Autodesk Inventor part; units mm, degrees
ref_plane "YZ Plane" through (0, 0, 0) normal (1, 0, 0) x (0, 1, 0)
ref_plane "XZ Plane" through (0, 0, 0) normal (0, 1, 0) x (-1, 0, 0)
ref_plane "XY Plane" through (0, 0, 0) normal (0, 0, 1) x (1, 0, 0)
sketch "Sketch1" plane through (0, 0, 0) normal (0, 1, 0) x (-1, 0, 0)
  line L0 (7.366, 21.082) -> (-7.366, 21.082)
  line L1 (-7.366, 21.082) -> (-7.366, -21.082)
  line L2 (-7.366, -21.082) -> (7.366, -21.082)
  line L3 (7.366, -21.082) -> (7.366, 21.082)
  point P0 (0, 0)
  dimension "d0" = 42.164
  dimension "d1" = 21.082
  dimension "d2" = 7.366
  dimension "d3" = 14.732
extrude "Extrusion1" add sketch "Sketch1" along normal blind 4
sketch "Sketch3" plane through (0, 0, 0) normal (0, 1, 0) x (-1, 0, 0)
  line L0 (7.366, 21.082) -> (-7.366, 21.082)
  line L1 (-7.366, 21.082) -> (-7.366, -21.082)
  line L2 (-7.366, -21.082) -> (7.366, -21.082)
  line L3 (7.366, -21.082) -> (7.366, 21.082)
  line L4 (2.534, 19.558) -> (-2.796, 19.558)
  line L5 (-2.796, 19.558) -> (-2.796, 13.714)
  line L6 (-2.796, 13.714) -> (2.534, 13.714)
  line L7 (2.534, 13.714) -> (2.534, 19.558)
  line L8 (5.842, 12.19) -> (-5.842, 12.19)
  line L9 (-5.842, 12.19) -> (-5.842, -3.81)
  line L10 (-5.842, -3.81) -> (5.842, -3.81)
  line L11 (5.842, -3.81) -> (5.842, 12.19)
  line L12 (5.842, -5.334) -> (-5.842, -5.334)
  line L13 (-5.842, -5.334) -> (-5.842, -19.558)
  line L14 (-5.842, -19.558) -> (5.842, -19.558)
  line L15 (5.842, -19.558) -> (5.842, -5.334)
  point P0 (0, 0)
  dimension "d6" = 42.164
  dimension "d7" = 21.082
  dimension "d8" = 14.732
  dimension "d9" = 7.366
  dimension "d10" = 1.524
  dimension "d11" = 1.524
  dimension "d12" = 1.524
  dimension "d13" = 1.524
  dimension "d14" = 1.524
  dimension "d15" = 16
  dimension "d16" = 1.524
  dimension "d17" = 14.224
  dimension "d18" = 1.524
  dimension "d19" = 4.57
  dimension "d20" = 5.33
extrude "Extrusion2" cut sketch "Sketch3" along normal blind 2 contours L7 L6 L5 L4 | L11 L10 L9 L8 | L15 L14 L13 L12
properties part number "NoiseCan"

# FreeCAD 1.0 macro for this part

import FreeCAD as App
import Part
import Sketcher

V = App.Vector
Q = App.Units.Quantity

doc = App.newDocument("Part")
body = doc.addObject("PartDesign::Body", "Body")

# Sketch on XZ plane
sketch1 = doc.addObject("Sketcher::SketchObject", "Sketch")
body.addObject(sketch1)
sketch1.AttachmentSupport = (doc.XZ_Plane, [""])
sketch1.MapMode = "FlatFace"
sketch1.addGeometry([
    Part.LineSegment(V(-7, -21, 0), V(-7, 21, 0)),
    Part.LineSegment(V(-7, 21, 0), V(7, 21, 0)),
    Part.LineSegment(V(7, 21, 0), V(7, -21, 0)),
    Part.LineSegment(V(7, -21, 0), V(-7, -21, 0)),
], False)
sketch1.addConstraint([
    Sketcher.Constraint("Coincident", 0, 2, 1, 1),
    Sketcher.Constraint("Coincident", 1, 2, 2, 1),
    Sketcher.Constraint("Coincident", 2, 2, 3, 1),
    Sketcher.Constraint("Coincident", 3, 2, 0, 1),
    Sketcher.Constraint("Vertical", 0),
    Sketcher.Constraint("Horizontal", 1),
    Sketcher.Constraint("Vertical", 2),
    Sketcher.Constraint("Horizontal", 3),
    Sketcher.Constraint("Symmetric", 0, 2, 2, 2, -1, 1),
    Sketcher.Constraint("DistanceX", 1, 1, 1, 2, Q("0.58 in")),
    Sketcher.Constraint("DistanceY", 0, 1, 0, 2, Q("1.66 in")),
])
pad1 = doc.addObject("PartDesign::Pad", "Pad")
body.addObject(pad1)
pad1.Profile = sketch1
pad1.Length = 4
pad1.Reversed = True

# Sketch on XZ plane
sketch2 = doc.addObject("Sketcher::SketchObject", "Sketch001")
body.addObject(sketch2)
sketch2.AttachmentSupport = (doc.XZ_Plane, [""])
sketch2.MapMode = "FlatFace"
sketch2.addGeometry([
    Part.LineSegment(V(-3, 14, 0), V(-3, 20, 0)),  # 0
    Part.LineSegment(V(-3, 20, 0), V(3, 20, 0)),  # 1
    Part.LineSegment(V(3, 20, 0), V(3, 14, 0)),  # 2
    Part.LineSegment(V(3, 14, 0), V(-3, 14, 0)),  # 3
    Part.LineSegment(V(-6, -4, 0), V(-6, 12, 0)),  # 4
    Part.LineSegment(V(-6, 12, 0), V(6, 12, 0)),  # 5
    Part.LineSegment(V(6, 12, 0), V(6, -4, 0)),  # 6
    Part.LineSegment(V(6, -4, 0), V(-6, -4, 0)),  # 7
    Part.LineSegment(V(-6, -20, 0), V(-6, -5, 0)),  # 8
    Part.LineSegment(V(-6, -5, 0), V(6, -5, 0)),  # 9
    Part.LineSegment(V(6, -5, 0), V(6, -20, 0)),  # 10
    Part.LineSegment(V(6, -20, 0), V(-6, -20, 0)),  # 11
], False)
sketch2.addConstraint([
    Sketcher.Constraint("Coincident", 0, 2, 1, 1),
    Sketcher.Constraint("Coincident", 1, 2, 2, 1),
    Sketcher.Constraint("Coincident", 2, 2, 3, 1),
    Sketcher.Constraint("Coincident", 3, 2, 0, 1),
    Sketcher.Constraint("Coincident", 4, 2, 5, 1),
    Sketcher.Constraint("Coincident", 5, 2, 6, 1),
    Sketcher.Constraint("Coincident", 6, 2, 7, 1),
    Sketcher.Constraint("Coincident", 7, 2, 4, 1),
    Sketcher.Constraint("Coincident", 8, 2, 9, 1),
    Sketcher.Constraint("Coincident", 9, 2, 10, 1),
    Sketcher.Constraint("Coincident", 10, 2, 11, 1),
    Sketcher.Constraint("Coincident", 11, 2, 8, 1),
    Sketcher.Constraint("Vertical", 0),
    Sketcher.Constraint("Horizontal", 1),
    Sketcher.Constraint("Vertical", 2),
    Sketcher.Constraint("Horizontal", 3),
    Sketcher.Constraint("Vertical", 4),
    Sketcher.Constraint("Horizontal", 5),
    Sketcher.Constraint("Vertical", 6),
    Sketcher.Constraint("Horizontal", 7),
    Sketcher.Constraint("Vertical", 8),
    Sketcher.Constraint("Horizontal", 9),
    Sketcher.Constraint("Vertical", 10),
    Sketcher.Constraint("Horizontal", 11),
    Sketcher.Constraint("Vertical", 7, 2, 8, 2),
    Sketcher.Constraint("Vertical", 6, 2, 9, 2),
    Sketcher.Constraint("DistanceY", 8, 1, 8, 2, Q("0.56 in")),
    Sketcher.Constraint("DistanceY", 4, 2, 3, 2, Q("0.06 in")),
    Sketcher.Constraint("DistanceY", 8, 2, 7, 2, Q("0.06 in")),
    Sketcher.Constraint("DistanceX", 1, 1, 1, 2, Q("5.33 mm")),
    Sketcher.Constraint("DistanceX", 5, 1, 5, 2, Q("0.46 in")),
    Sketcher.Constraint("DistanceY", 4, 1, 4, 2, Q("16 mm")),
    Sketcher.Constraint("DistanceY", -1, 1, 0, 2, Q("0.77 in")),
    Sketcher.Constraint("DistanceX", 4, 2, -1, 1, Q("0.23 in")),
    Sketcher.Constraint("DistanceY", 6, 2, -1, 1, Q("0.15 in")),
    Sketcher.Constraint("DistanceX", 0, 2, -1, 1, Q("2.534 mm")),
])
pocket1 = doc.addObject("PartDesign::Pocket", "Pocket")
body.addObject(pocket1)
pocket1.Profile = sketch2
pocket1.Length = 2

doc.recompute()
